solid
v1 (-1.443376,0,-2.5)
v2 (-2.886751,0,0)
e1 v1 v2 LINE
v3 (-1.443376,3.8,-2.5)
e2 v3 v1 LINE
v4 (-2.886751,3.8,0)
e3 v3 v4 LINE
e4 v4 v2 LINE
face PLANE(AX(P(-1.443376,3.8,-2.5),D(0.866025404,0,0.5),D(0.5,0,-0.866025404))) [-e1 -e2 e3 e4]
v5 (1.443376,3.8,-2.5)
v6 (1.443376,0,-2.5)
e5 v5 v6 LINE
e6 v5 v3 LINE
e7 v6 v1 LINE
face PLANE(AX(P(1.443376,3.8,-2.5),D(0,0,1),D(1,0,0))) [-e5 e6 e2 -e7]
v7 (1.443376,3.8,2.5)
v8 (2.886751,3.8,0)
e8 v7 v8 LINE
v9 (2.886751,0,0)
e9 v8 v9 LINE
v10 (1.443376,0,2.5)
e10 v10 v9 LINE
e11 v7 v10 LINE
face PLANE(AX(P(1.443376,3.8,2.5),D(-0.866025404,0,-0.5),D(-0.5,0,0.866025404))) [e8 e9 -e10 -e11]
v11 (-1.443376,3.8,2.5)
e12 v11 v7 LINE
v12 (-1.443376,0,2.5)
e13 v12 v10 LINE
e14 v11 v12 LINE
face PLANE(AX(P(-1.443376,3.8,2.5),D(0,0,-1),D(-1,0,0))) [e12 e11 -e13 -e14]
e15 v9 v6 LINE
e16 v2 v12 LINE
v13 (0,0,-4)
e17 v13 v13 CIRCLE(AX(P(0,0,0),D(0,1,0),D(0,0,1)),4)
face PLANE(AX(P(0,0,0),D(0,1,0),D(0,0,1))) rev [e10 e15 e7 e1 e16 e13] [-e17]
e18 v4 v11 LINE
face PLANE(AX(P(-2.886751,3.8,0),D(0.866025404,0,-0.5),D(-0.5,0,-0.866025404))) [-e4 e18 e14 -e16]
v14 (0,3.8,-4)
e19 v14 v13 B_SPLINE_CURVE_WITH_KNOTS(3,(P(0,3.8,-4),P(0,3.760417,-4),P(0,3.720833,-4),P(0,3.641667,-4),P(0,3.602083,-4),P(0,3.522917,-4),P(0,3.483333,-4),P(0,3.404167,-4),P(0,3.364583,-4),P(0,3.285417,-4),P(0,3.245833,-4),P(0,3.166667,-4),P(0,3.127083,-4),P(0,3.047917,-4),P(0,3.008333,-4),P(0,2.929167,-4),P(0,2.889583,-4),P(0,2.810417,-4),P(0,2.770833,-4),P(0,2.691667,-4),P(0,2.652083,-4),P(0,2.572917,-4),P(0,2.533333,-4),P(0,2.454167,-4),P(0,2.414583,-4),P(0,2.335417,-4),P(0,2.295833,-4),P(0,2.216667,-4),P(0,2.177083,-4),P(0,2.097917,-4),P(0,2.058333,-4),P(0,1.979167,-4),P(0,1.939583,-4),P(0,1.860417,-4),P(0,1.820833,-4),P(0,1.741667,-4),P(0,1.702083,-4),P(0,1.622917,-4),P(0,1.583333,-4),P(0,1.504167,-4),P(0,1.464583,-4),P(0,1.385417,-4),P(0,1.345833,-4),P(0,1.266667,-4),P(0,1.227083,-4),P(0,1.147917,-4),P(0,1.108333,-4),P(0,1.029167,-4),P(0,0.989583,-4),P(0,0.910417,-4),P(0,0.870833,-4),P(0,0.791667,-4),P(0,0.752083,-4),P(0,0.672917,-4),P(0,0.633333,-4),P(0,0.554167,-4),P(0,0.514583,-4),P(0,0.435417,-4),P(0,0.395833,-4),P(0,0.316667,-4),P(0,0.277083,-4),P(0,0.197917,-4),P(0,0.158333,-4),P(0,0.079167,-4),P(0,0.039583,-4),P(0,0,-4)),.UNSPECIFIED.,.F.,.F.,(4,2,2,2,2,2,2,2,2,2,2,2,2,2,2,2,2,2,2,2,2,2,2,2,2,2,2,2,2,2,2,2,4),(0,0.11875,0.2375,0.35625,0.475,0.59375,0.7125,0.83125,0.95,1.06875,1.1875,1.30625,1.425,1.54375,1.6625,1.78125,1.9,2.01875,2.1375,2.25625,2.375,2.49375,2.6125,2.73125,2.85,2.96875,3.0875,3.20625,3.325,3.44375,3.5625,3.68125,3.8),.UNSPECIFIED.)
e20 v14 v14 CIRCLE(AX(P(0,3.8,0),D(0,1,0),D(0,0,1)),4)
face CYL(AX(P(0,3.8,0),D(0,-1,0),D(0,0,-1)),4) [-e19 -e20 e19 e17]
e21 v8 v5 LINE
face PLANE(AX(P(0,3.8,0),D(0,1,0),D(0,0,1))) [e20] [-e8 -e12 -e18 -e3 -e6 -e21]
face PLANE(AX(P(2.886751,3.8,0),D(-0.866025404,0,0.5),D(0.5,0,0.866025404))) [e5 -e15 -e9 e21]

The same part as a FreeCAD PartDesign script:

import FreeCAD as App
import Part
import Sketcher
from FreeCAD import Vector
Q = App.Units.Quantity


def add_polygon(sketch, points):
    """Adds a closed chain of lines whose ends are joined by coincident constraints."""
    first, n = sketch.GeometryCount, len(points)
    for a, b in zip(points, points[1:] + points[:1]):
        sketch.addGeometry(Part.LineSegment(App.Vector(*a, 0), App.Vector(*b, 0)), False)
    for i in range(n):
        sketch.addConstraint(Sketcher.Constraint("Coincident", first + i, 2, first + (i + 1) % n, 1))

doc = App.newDocument("Part")
params = doc.addObject("Spreadsheet::Sheet", "Params")
for row, (alias, value) in enumerate([
    ("sketch1_diameter", "8 mm"),
    ("pad1_length", "3.8 mm"),
], start=1):
    params.set(f"A{row}", alias)
    params.set(f"B{row}", "=" + value)
    params.setAlias(f"B{row}", alias)

body = doc.addObject("PartDesign::Body", "Body")

sketch1 = body.newObject("Sketcher::SketchObject", "Sketch")
sketch1.AttachmentSupport = (doc.getObject("XZ_Plane"), [""])
sketch1.MapMode = "FlatFace"
sketch1.addGeometry(Part.Circle(Vector(0, 0, 0), Vector(0, 0, 1), 4), False)
add_polygon(sketch1, [(1.4, -2.5), (2.9, 0), (1.4, 2.5), (-1.4, 2.5), (-2.9, 0), (-1.4, -2.5)])
sketch1.addConstraint(Sketcher.Constraint("Horizontal", 3))
sketch1.addConstraint(Sketcher.Constraint("Horizontal", 6))
sketch1.addConstraint(Sketcher.Constraint("Coincident", 0, 3, -1, 1))
sketch1.addConstraint(Sketcher.Constraint("Symmetric", 1, 2, 4, 2, -1, 1))
sketch1.addConstraint(Sketcher.Constraint("Symmetric", 2, 2, 5, 2, -1, 1))
sketch1.addConstraint(Sketcher.Constraint("PointOnObject", 1, 2, -1))
sketch1.addConstraint(Sketcher.Constraint("Parallel", 1, 4))
sketch1.addConstraint(Sketcher.Constraint("Vertical", 3, 2, 5, 2))
sketch1.addConstraint(Sketcher.Constraint("Diameter", 0, Q("8 mm")))
sketch1.addConstraint(Sketcher.Constraint("Angle", 1, Q("60 deg")))
sketch1.addConstraint(Sketcher.Constraint("DistanceY", 5, 2, 3, 2, Q("5 mm")))
sketch1.addConstraint(Sketcher.Constraint("DistanceX", 3, 2, 3, 1, Q("2.886751 mm")))
sketch1.setExpression("Constraints[14]", "Params.sketch1_diameter")
pad1 = body.newObject("PartDesign::Pad", "Pad")
pad1.Profile = sketch1
pad1.setExpression("Length", "Params.pad1_length")
pad1.Reversed = True

doc.recompute()
